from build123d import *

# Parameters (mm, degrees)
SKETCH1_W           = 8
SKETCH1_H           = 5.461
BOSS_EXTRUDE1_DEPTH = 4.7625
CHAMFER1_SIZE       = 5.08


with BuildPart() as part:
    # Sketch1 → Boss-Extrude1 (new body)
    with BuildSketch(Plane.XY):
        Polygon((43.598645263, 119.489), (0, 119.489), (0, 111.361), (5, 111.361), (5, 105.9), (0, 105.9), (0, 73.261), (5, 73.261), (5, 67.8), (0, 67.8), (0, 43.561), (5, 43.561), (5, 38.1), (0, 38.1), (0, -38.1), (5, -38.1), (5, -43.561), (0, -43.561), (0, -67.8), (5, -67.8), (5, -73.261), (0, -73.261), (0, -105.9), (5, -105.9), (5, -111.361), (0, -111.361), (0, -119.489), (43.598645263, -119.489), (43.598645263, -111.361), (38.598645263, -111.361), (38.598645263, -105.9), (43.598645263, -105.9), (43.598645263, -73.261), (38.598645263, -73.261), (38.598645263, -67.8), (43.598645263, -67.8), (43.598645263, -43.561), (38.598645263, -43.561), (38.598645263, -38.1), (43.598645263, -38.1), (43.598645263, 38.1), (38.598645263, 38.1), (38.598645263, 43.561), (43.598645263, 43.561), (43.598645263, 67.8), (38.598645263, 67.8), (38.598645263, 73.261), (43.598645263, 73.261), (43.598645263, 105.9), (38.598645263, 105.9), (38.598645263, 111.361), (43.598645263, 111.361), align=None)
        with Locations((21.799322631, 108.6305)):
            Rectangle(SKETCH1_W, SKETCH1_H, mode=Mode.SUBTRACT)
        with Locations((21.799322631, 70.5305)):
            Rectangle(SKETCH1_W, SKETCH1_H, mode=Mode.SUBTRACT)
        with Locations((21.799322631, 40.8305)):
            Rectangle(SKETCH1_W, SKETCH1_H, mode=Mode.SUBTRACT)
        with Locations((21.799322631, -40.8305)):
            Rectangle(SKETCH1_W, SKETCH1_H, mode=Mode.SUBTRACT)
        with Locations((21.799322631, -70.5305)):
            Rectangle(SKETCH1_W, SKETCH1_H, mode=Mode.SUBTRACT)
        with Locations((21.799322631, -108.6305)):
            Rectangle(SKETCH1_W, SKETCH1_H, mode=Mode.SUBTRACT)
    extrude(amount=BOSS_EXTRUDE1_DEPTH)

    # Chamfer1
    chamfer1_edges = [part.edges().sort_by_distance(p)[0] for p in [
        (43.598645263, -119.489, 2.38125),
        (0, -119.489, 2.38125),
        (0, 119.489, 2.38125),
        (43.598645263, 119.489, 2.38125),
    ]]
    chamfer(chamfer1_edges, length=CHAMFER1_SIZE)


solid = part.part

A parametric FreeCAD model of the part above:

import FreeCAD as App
import Part
import Sketcher
from FreeCAD import Vector
Q = App.Units.Quantity


def edges_at(feature, points):
    """Names of the edges that pass closest to the given points."""
    edges = feature.Shape.Edges
    near = lambda p: min(range(len(edges)), key=lambda i: edges[i].distToShape(Part.Vertex(*p))[0])
    return sorted({f"Edge{near(p) + 1}" for p in points})

doc = App.newDocument("Part")
body = doc.addObject("PartDesign::Body", "Body")

# Sketch on XY plane
sketch1 = body.newObject("Sketcher::SketchObject", "Sketch")
sketch1.AttachmentSupport = (doc.getObject("XY_Plane"), [""])
sketch1.MapMode = "FlatFace"
sketch1.addGeometry(Part.LineSegment(Vector(43.598645, 119.489, 0), Vector(0, 119.489, 0)), False)
sketch1.addGeometry(Part.LineSegment(Vector(0, 119.489, 0), Vector(0, 111.361, 0)), False)
sketch1.addGeometry(Part.LineSegment(Vector(0, 111.361, 0), Vector(5, 111.361, 0)), False)
sketch1.addGeometry(Part.LineSegment(Vector(5, 111.361, 0), Vector(5, 105.9, 0)), False)
sketch1.addGeometry(Part.LineSegment(Vector(5, 105.9, 0), Vector(0, 105.9, 0)), False)
sketch1.addGeometry(Part.LineSegment(Vector(0, 105.9, 0), Vector(0, 73.261, 0)), False)
sketch1.addGeometry(Part.LineSegment(Vector(0, 73.261, 0), Vector(5, 73.261, 0)), False)
sketch1.addGeometry(Part.LineSegment(Vector(5, 73.261, 0), Vector(5, 67.8, 0)), False)
sketch1.addGeometry(Part.LineSegment(Vector(5, 67.8, 0), Vector(0, 67.8, 0)), False)
sketch1.addGeometry(Part.LineSegment(Vector(0, 67.8, 0), Vector(0, 43.561, 0)), False)
sketch1.addGeometry(Part.LineSegment(Vector(0, 43.561, 0), Vector(5, 43.561, 0)), False)
sketch1.addGeometry(Part.LineSegment(Vector(5, 43.561, 0), Vector(5, 38.1, 0)), False)
sketch1.addGeometry(Part.LineSegment(Vector(5, 38.1, 0), Vector(0, 38.1, 0)), False)
sketch1.addGeometry(Part.LineSegment(Vector(0, 38.1, 0), Vector(0, -38.1, 0)), False)
sketch1.addGeometry(Part.LineSegment(Vector(0, -38.1, 0), Vector(5, -38.1, 0)), False)
sketch1.addGeometry(Part.LineSegment(Vector(5, -38.1, 0), Vector(5, -43.561, 0)), False)
sketch1.addGeometry(Part.LineSegment(Vector(5, -43.561, 0), Vector(0, -43.561, 0)), False)
sketch1.addGeometry(Part.LineSegment(Vector(0, -43.561, 0), Vector(0, -67.8, 0)), False)
sketch1.addGeometry(Part.LineSegment(Vector(0, -67.8, 0), Vector(5, -67.8, 0)), False)
sketch1.addGeometry(Part.LineSegment(Vector(5, -67.8, 0), Vector(5, -73.261, 0)), False)
sketch1.addGeometry(Part.LineSegment(Vector(5, -73.261, 0), Vector(0, -73.261, 0)), False)
sketch1.addGeometry(Part.LineSegment(Vector(0, -73.261, 0), Vector(0, -105.9, 0)), False)
sketch1.addGeometry(Part.LineSegment(Vector(0, -105.9, 0), Vector(5, -105.9, 0)), False)
sketch1.addGeometry(Part.LineSegment(Vector(5, -105.9, 0), Vector(5, -111.361, 0)), False)
sketch1.addGeometry(Part.LineSegment(Vector(5, -111.361, 0), Vector(0, -111.361, 0)), False)
sketch1.addGeometry(Part.LineSegment(Vector(0, -111.361, 0), Vector(0, -119.489, 0)), False)
sketch1.addGeometry(Part.LineSegment(Vector(0, -119.489, 0), Vector(43.598645, -119.489, 0)), False)
sketch1.addGeometry(Part.LineSegment(Vector(43.598645, -119.489, 0), Vector(43.598645, -111.361, 0)), False)
sketch1.addGeometry(Part.LineSegment(Vector(43.598645, -111.361, 0), Vector(38.598645, -111.361, 0)), False)
sketch1.addGeometry(Part.LineSegment(Vector(38.598645, -111.361, 0), Vector(38.598645, -105.9, 0)), False)
sketch1.addGeometry(Part.LineSegment(Vector(38.598645, -105.9, 0), Vector(43.598645, -105.9, 0)), False)
sketch1.addGeometry(Part.LineSegment(Vector(43.598645, -105.9, 0), Vector(43.598645, -73.261, 0)), False)
sketch1.addGeometry(Part.LineSegment(Vector(43.598645, -73.261, 0), Vector(38.598645, -73.261, 0)), False)
sketch1.addGeometry(Part.LineSegment(Vector(38.598645, -73.261, 0), Vector(38.598645, -67.8, 0)), False)
sketch1.addGeometry(Part.LineSegment(Vector(38.598645, -67.8, 0), Vector(43.598645, -67.8, 0)), False)
sketch1.addGeometry(Part.LineSegment(Vector(43.598645, -67.8, 0), Vector(43.598645, -43.561, 0)), False)
sketch1.addGeometry(Part.LineSegment(Vector(43.598645, -43.561, 0), Vector(38.598645, -43.561, 0)), False)
sketch1.addGeometry(Part.LineSegment(Vector(38.598645, -43.561, 0), Vector(38.598645, -38.1, 0)), False)
sketch1.addGeometry(Part.LineSegment(Vector(38.598645, -38.1, 0), Vector(43.598645, -38.1, 0)), False)
sketch1.addGeometry(Part.LineSegment(Vector(43.598645, -38.1, 0), Vector(43.598645, 38.1, 0)), False)
sketch1.addGeometry(Part.LineSegment(Vector(43.598645, 38.1, 0), Vector(38.598645, 38.1, 0)), False)
sketch1.addGeometry(Part.LineSegment(Vector(38.598645, 38.1, 0), Vector(38.598645, 43.561, 0)), False)
sketch1.addGeometry(Part.LineSegment(Vector(38.598645, 43.561, 0), Vector(43.598645, 43.561, 0)), False)
sketch1.addGeometry(Part.LineSegment(Vector(43.598645, 43.561, 0), Vector(43.598645, 67.8, 0)), False)
sketch1.addGeometry(Part.LineSegment(Vector(43.598645, 67.8, 0), Vector(38.598645, 67.8, 0)), False)
sketch1.addGeometry(Part.LineSegment(Vector(38.598645, 67.8, 0), Vector(38.598645, 73.261, 0)), False)
sketch1.addGeometry(Part.LineSegment(Vector(38.598645, 73.261, 0), Vector(43.598645, 73.261, 0)), False)
sketch1.addGeometry(Part.LineSegment(Vector(43.598645, 73.261, 0), Vector(43.598645, 105.9, 0)), False)
sketch1.addGeometry(Part.LineSegment(Vector(43.598645, 105.9, 0), Vector(38.598645, 105.9, 0)), False)
sketch1.addGeometry(Part.LineSegment(Vector(38.598645, 105.9, 0), Vector(38.598645, 111.361, 0)), False)
sketch1.addGeometry(Part.LineSegment(Vector(38.598645, 111.361, 0), Vector(43.598645, 111.361, 0)), False)
sketch1.addGeometry(Part.LineSegment(Vector(43.598645, 111.361, 0), Vector(43.598645, 119.489, 0)), False)
sketch1.addGeometry(Part.LineSegment(Vector(25.799323, -111.361, 0), Vector(17.799323, -111.361, 0)), False)
sketch1.addGeometry(Part.LineSegment(Vector(17.799323, -111.361, 0), Vector(17.799323, -105.9, 0)), False)
sketch1.addGeometry(Part.LineSegment(Vector(17.799323, -105.9, 0), Vector(25.799323, -105.9, 0)), False)
sketch1.addGeometry(Part.LineSegment(Vector(25.799323, -105.9, 0), Vector(25.799323, -111.361, 0)), False)
sketch1.addGeometry(Part.LineSegment(Vector(25.799323, -73.261, 0), Vector(17.799323, -73.261, 0)), False)
sketch1.addGeometry(Part.LineSegment(Vector(17.799323, -73.261, 0), Vector(17.799323, -67.8, 0)), False)
sketch1.addGeometry(Part.LineSegment(Vector(17.799323, -67.8, 0), Vector(25.799323, -67.8, 0)), False)
sketch1.addGeometry(Part.LineSegment(Vector(25.799323, -67.8, 0), Vector(25.799323, -73.261, 0)), False)
sketch1.addGeometry(Part.LineSegment(Vector(25.799323, -43.561, 0), Vector(17.799323, -43.561, 0)), False)
sketch1.addGeometry(Part.LineSegment(Vector(17.799323, -43.561, 0), Vector(17.799323, -38.1, 0)), False)
sketch1.addGeometry(Part.LineSegment(Vector(17.799323, -38.1, 0), Vector(25.799323, -38.1, 0)), False)
sketch1.addGeometry(Part.LineSegment(Vector(25.799323, -38.1, 0), Vector(25.799323, -43.561, 0)), False)
sketch1.addGeometry(Part.LineSegment(Vector(25.799323, 38.1, 0), Vector(17.799323, 38.1, 0)), False)
sketch1.addGeometry(Part.LineSegment(Vector(17.799323, 38.1, 0), Vector(17.799323, 43.561, 0)), False)
sketch1.addGeometry(Part.LineSegment(Vector(17.799323, 43.561, 0), Vector(25.799323, 43.561, 0)), False)
sketch1.addGeometry(Part.LineSegment(Vector(25.799323, 43.561, 0), Vector(25.799323, 38.1, 0)), False)
sketch1.addGeometry(Part.LineSegment(Vector(25.799323, 67.8, 0), Vector(17.799323, 67.8, 0)), False)
sketch1.addGeometry(Part.LineSegment(Vector(17.799323, 67.8, 0), Vector(17.799323, 73.261, 0)), False)
sketch1.addGeometry(Part.LineSegment(Vector(17.799323, 73.261, 0), Vector(25.799323, 73.261, 0)), False)
sketch1.addGeometry(Part.LineSegment(Vector(25.799323, 73.261, 0), Vector(25.799323, 67.8, 0)), False)
sketch1.addGeometry(Part.LineSegment(Vector(25.799323, 105.9, 0), Vector(17.799323, 105.9, 0)), False)
sketch1.addGeometry(Part.LineSegment(Vector(17.799323, 105.9, 0), Vector(17.799323, 111.361, 0)), False)
sketch1.addGeometry(Part.LineSegment(Vector(17.799323, 111.361, 0), Vector(25.799323, 111.361, 0)), False)
sketch1.addGeometry(Part.LineSegment(Vector(25.799323, 111.361, 0), Vector(25.799323, 105.9, 0)), False)
sketch1.addConstraint(Sketcher.Constraint("Coincident", 0, 2, 1, 1))
sketch1.addConstraint(Sketcher.Constraint("Coincident", 1, 2, 2, 1))
sketch1.addConstraint(Sketcher.Constraint("Coincident", 2, 2, 3, 1))
sketch1.addConstraint(Sketcher.Constraint("Coincident", 3, 2, 4, 1))
sketch1.addConstraint(Sketcher.Constraint("Coincident", 4, 2, 5, 1))
sketch1.addConstraint(Sketcher.Constraint("Coincident", 5, 2, 6, 1))
sketch1.addConstraint(Sketcher.Constraint("Coincident", 6, 2, 7, 1))
sketch1.addConstraint(Sketcher.Constraint("Coincident", 7, 2, 8, 1))
sketch1.addConstraint(Sketcher.Constraint("Coincident", 8, 2, 9, 1))
sketch1.addConstraint(Sketcher.Constraint("Coincident", 9, 2, 10, 1))
sketch1.addConstraint(Sketcher.Constraint("Coincident", 10, 2, 11, 1))
sketch1.addConstraint(Sketcher.Constraint("Coincident", 11, 2, 12, 1))
sketch1.addConstraint(Sketcher.Constraint("Coincident", 12, 2, 13, 1))
sketch1.addConstraint(Sketcher.Constraint("Coincident", 13, 2, 14, 1))
sketch1.addConstraint(Sketcher.Constraint("Coincident", 14, 2, 15, 1))
sketch1.addConstraint(Sketcher.Constraint("Coincident", 15, 2, 16, 1))
sketch1.addConstraint(Sketcher.Constraint("Coincident", 16, 2, 17, 1))
sketch1.addConstraint(Sketcher.Constraint("Coincident", 17, 2, 18, 1))
sketch1.addConstraint(Sketcher.Constraint("Coincident", 18, 2, 19, 1))
sketch1.addConstraint(Sketcher.Constraint("Coincident", 19, 2, 20, 1))
sketch1.addConstraint(Sketcher.Constraint("Coincident", 20, 2, 21, 1))
sketch1.addConstraint(Sketcher.Constraint("Coincident", 21, 2, 22, 1))
sketch1.addConstraint(Sketcher.Constraint("Coincident", 22, 2, 23, 1))
sketch1.addConstraint(Sketcher.Constraint("Coincident", 23, 2, 24, 1))
sketch1.addConstraint(Sketcher.Constraint("Coincident", 24, 2, 25, 1))
sketch1.addConstraint(Sketcher.Constraint("Coincident", 25, 2, 26, 1))
sketch1.addConstraint(Sketcher.Constraint("Coincident", 26, 2, 27, 1))
sketch1.addConstraint(Sketcher.Constraint("Coincident", 27, 2, 28, 1))
sketch1.addConstraint(Sketcher.Constraint("Coincident", 28, 2, 29, 1))
sketch1.addConstraint(Sketcher.Constraint("Coincident", 29, 2, 30, 1))
sketch1.addConstraint(Sketcher.Constraint("Coincident", 30, 2, 31, 1))
sketch1.addConstraint(Sketcher.Constraint("Coincident", 31, 2, 32, 1))
sketch1.addConstraint(Sketcher.Constraint("Coincident", 32, 2, 33, 1))
sketch1.addConstraint(Sketcher.Constraint("Coincident", 33, 2, 34, 1))
sketch1.addConstraint(Sketcher.Constraint("Coincident", 34, 2, 35, 1))
sketch1.addConstraint(Sketcher.Constraint("Coincident", 35, 2, 36, 1))
sketch1.addConstraint(Sketcher.Constraint("Coincident", 36, 2, 37, 1))
sketch1.addConstraint(Sketcher.Constraint("Coincident", 37, 2, 38, 1))
sketch1.addConstraint(Sketcher.Constraint("Coincident", 38, 2, 39, 1))
sketch1.addConstraint(Sketcher.Constraint("Coincident", 39, 2, 40, 1))
sketch1.addConstraint(Sketcher.Constraint("Coincident", 40, 2, 41, 1))
sketch1.addConstraint(Sketcher.Constraint("Coincident", 41, 2, 42, 1))
sketch1.addConstraint(Sketcher.Constraint("Coincident", 42, 2, 43, 1))
sketch1.addConstraint(Sketcher.Constraint("Coincident", 43, 2, 44, 1))
sketch1.addConstraint(Sketcher.Constraint("Coincident", 44, 2, 45, 1))
sketch1.addConstraint(Sketcher.Constraint("Coincident", 45, 2, 46, 1))
sketch1.addConstraint(Sketcher.Constraint("Coincident", 46, 2, 47, 1))
sketch1.addConstraint(Sketcher.Constraint("Coincident", 47, 2, 48, 1))
sketch1.addConstraint(Sketcher.Constraint("Coincident", 48, 2, 49, 1))
sketch1.addConstraint(Sketcher.Constraint("Coincident", 49, 2, 50, 1))
sketch1.addConstraint(Sketcher.Constraint("Coincident", 50, 2, 51, 1))
sketch1.addConstraint(Sketcher.Constraint("Coincident", 51, 2, 0, 1))
sketch1.addConstraint(Sketcher.Constraint("Coincident", 52, 2, 53, 1))
sketch1.addConstraint(Sketcher.Constraint("Coincident", 53, 2, 54, 1))
sketch1.addConstraint(Sketcher.Constraint("Coincident", 54, 2, 55, 1))
sketch1.addConstraint(Sketcher.Constraint("Coincident", 55, 2, 52, 1))
sketch1.addConstraint(Sketcher.Constraint("Coincident", 56, 2, 57, 1))
sketch1.addConstraint(Sketcher.Constraint("Coincident", 57, 2, 58, 1))
sketch1.addConstraint(Sketcher.Constraint("Coincident", 58, 2, 59, 1))
sketch1.addConstraint(Sketcher.Constraint("Coincident", 59, 2, 56, 1))
sketch1.addConstraint(Sketcher.Constraint("Coincident", 60, 2, 61, 1))
sketch1.addConstraint(Sketcher.Constraint("Coincident", 61, 2, 62, 1))
sketch1.addConstraint(Sketcher.Constraint("Coincident", 62, 2, 63, 1))
sketch1.addConstraint(Sketcher.Constraint("Coincident", 63, 2, 60, 1))
sketch1.addConstraint(Sketcher.Constraint("Coincident", 64, 2, 65, 1))
sketch1.addConstraint(Sketcher.Constraint("Coincident", 65, 2, 66, 1))
sketch1.addConstraint(Sketcher.Constraint("Coincident", 66, 2, 67, 1))
sketch1.addConstraint(Sketcher.Constraint("Coincident", 67, 2, 64, 1))
sketch1.addConstraint(Sketcher.Constraint("Coincident", 68, 2, 69, 1))
sketch1.addConstraint(Sketcher.Constraint("Coincident", 69, 2, 70, 1))
sketch1.addConstraint(Sketcher.Constraint("Coincident", 70, 2, 71, 1))
sketch1.addConstraint(Sketcher.Constraint("Coincident", 71, 2, 68, 1))
sketch1.addConstraint(Sketcher.Constraint("Coincident", 72, 2, 73, 1))
sketch1.addConstraint(Sketcher.Constraint("Coincident", 73, 2, 74, 1))
sketch1.addConstraint(Sketcher.Constraint("Coincident", 74, 2, 75, 1))
sketch1.addConstraint(Sketcher.Constraint("Coincident", 75, 2, 72, 1))
sketch1.addConstraint(Sketcher.Constraint("Horizontal", 0))
sketch1.addConstraint(Sketcher.Constraint("Vertical", 1))
sketch1.addConstraint(Sketcher.Constraint("Horizontal", 2))
sketch1.addConstraint(Sketcher.Constraint("Vertical", 3))
sketch1.addConstraint(Sketcher.Constraint("Horizontal", 4))
sketch1.addConstraint(Sketcher.Constraint("Vertical", 5))
sketch1.addConstraint(Sketcher.Constraint("Horizontal", 6))
sketch1.addConstraint(Sketcher.Constraint("Vertical", 7))
sketch1.addConstraint(Sketcher.Constraint("Horizontal", 8))
sketch1.addConstraint(Sketcher.Constraint("Vertical", 9))
sketch1.addConstraint(Sketcher.Constraint("Horizontal", 10))
sketch1.addConstraint(Sketcher.Constraint("Vertical", 11))
sketch1.addConstraint(Sketcher.Constraint("Horizontal", 12))
sketch1.addConstraint(Sketcher.Constraint("Vertical", 13))
sketch1.addConstraint(Sketcher.Constraint("Horizontal", 14))
sketch1.addConstraint(Sketcher.Constraint("Vertical", 15))
sketch1.addConstraint(Sketcher.Constraint("Horizontal", 16))
sketch1.addConstraint(Sketcher.Constraint("Vertical", 17))
sketch1.addConstraint(Sketcher.Constraint("Horizontal", 18))
sketch1.addConstraint(Sketcher.Constraint("Vertical", 19))
sketch1.addConstraint(Sketcher.Constraint("Horizontal", 20))
sketch1.addConstraint(Sketcher.Constraint("Vertical", 21))
sketch1.addConstraint(Sketcher.Constraint("Horizontal", 22))
sketch1.addConstraint(Sketcher.Constraint("Vertical", 23))
sketch1.addConstraint(Sketcher.Constraint("Horizontal", 24))
sketch1.addConstraint(Sketcher.Constraint("Vertical", 25))
sketch1.addConstraint(Sketcher.Constraint("Horizontal", 26))
sketch1.addConstraint(Sketcher.Constraint("Vertical", 27))
sketch1.addConstraint(Sketcher.Constraint("Horizontal", 28))
sketch1.addConstraint(Sketcher.Constraint("Vertical", 29))
sketch1.addConstraint(Sketcher.Constraint("Horizontal", 30))
sketch1.addConstraint(Sketcher.Constraint("Vertical", 31))
sketch1.addConstraint(Sketcher.Constraint("Horizontal", 32))
sketch1.addConstraint(Sketcher.Constraint("Vertical", 33))
sketch1.addConstraint(Sketcher.Constraint("Horizontal", 34))
sketch1.addConstraint(Sketcher.Constraint("Vertical", 35))
sketch1.addConstraint(Sketcher.Constraint("Horizontal", 36))
sketch1.addConstraint(Sketcher.Constraint("Vertical", 37))
sketch1.addConstraint(Sketcher.Constraint("Horizontal", 38))
sketch1.addConstraint(Sketcher.Constraint("Vertical", 39))
sketch1.addConstraint(Sketcher.Constraint("Horizontal", 40))
sketch1.addConstraint(Sketcher.Constraint("Vertical", 41))
sketch1.addConstraint(Sketcher.Constraint("Horizontal", 42))
sketch1.addConstraint(Sketcher.Constraint("Vertical", 43))
sketch1.addConstraint(Sketcher.Constraint("Horizontal", 44))
sketch1.addConstraint(Sketcher.Constraint("Vertical", 45))
sketch1.addConstraint(Sketcher.Constraint("Horizontal", 46))
sketch1.addConstraint(Sketcher.Constraint("Vertical", 47))
sketch1.addConstraint(Sketcher.Constraint("Horizontal", 48))
sketch1.addConstraint(Sketcher.Constraint("Vertical", 49))
sketch1.addConstraint(Sketcher.Constraint("Horizontal", 50))
sketch1.addConstraint(Sketcher.Constraint("Vertical", 51))
sketch1.addConstraint(Sketcher.Constraint("Horizontal", 52))
sketch1.addConstraint(Sketcher.Constraint("Vertical", 53))
sketch1.addConstraint(Sketcher.Constraint("Horizontal", 54))
sketch1.addConstraint(Sketcher.Constraint("Vertical", 55))
sketch1.addConstraint(Sketcher.Constraint("Horizontal", 56))
sketch1.addConstraint(Sketcher.Constraint("Vertical", 57))
sketch1.addConstraint(Sketcher.Constraint("Horizontal", 58))
sketch1.addConstraint(Sketcher.Constraint("Vertical", 59))
sketch1.addConstraint(Sketcher.Constraint("Horizontal", 60))
sketch1.addConstraint(Sketcher.Constraint("Vertical", 61))
sketch1.addConstraint(Sketcher.Constraint("Horizontal", 62))
sketch1.addConstraint(Sketcher.Constraint("Vertical", 63))
sketch1.addConstraint(Sketcher.Constraint("Horizontal", 64))
sketch1.addConstraint(Sketcher.Constraint("Vertical", 65))
sketch1.addConstraint(Sketcher.Constraint("Horizontal", 66))
sketch1.addConstraint(Sketcher.Constraint("Vertical", 67))
sketch1.addConstraint(Sketcher.Constraint("Horizontal", 68))
sketch1.addConstraint(Sketcher.Constraint("Vertical", 69))
sketch1.addConstraint(Sketcher.Constraint("Horizontal", 70))
sketch1.addConstraint(Sketcher.Constraint("Vertical", 71))
sketch1.addConstraint(Sketcher.Constraint("Horizontal", 72))
sketch1.addConstraint(Sketcher.Constraint("Vertical", 73))
sketch1.addConstraint(Sketcher.Constraint("Horizontal", 74))
sketch1.addConstraint(Sketcher.Constraint("Vertical", 75))
sketch1.addConstraint(Sketcher.Constraint("Symmetric", 12, 2, 13, 2, -1, 1))
sketch1.addConstraint(Sketcher.Constraint("Symmetric", 9, 2, 16, 2, -1, 1))
sketch1.addConstraint(Sketcher.Constraint("Symmetric", 5, 2, 20, 2, -1, 1))
sketch1.addConstraint(Sketcher.Constraint("Symmetric", 1, 2, 24, 2, -1, 1))
sketch1.addConstraint(Sketcher.Constraint("Symmetric", 8, 2, 17, 2, -1))
sketch1.addConstraint(Sketcher.Constraint("Symmetric", 4, 2, 21, 2, -1))
sketch1.addConstraint(Sketcher.Constraint("Symmetric", 0, 2, 25, 2, -1))
sketch1.addConstraint(Sketcher.Constraint("Symmetric", 37, 2, 40, 2, -1))
sketch1.addConstraint(Sketcher.Constraint("Symmetric", 35, 2, 42, 2, -1))
sketch1.addConstraint(Sketcher.Constraint("Symmetric", 33, 2, 44, 2, -1))
sketch1.addConstraint(Sketcher.Constraint("Symmetric", 31, 2, 46, 2, -1))
sketch1.addConstraint(Sketcher.Constraint("Symmetric", 29, 2, 48, 2, -1))
sketch1.addConstraint(Sketcher.Constraint("Symmetric", 27, 2, 50, 2, -1))
sketch1.addConstraint(Sketcher.Constraint("Symmetric", 61, 2, 64, 2, -1))
sketch1.addConstraint(Sketcher.Constraint("Symmetric", 63, 2, 66, 2, -1))
sketch1.addConstraint(Sketcher.Constraint("Symmetric", 57, 2, 68, 2, -1))
sketch1.addConstraint(Sketcher.Constraint("Symmetric", 59, 2, 70, 2, -1))
sketch1.addConstraint(Sketcher.Constraint("Symmetric", 53, 2, 72, 2, -1))
sketch1.addConstraint(Sketcher.Constraint("Symmetric", 55, 2, 74, 2, -1))
sketch1.addConstraint(Sketcher.Constraint("Horizontal", 24, 2, 27, 2))
sketch1.addConstraint(Sketcher.Constraint("Horizontal", 22, 2, 29, 2))
sketch1.addConstraint(Sketcher.Constraint("Horizontal", 20, 2, 31, 2))
sketch1.addConstraint(Sketcher.Constraint("Horizontal", 18, 2, 33, 2))
sketch1.addConstraint(Sketcher.Constraint("Horizontal", 16, 2, 35, 2))
sketch1.addConstraint(Sketcher.Constraint("Horizontal", 14, 2, 37, 2))
sketch1.addConstraint(Sketcher.Constraint("Horizontal", 28, 2, 52, 2))
sketch1.addConstraint(Sketcher.Constraint("Horizontal", 30, 2, 53, 2))
sketch1.addConstraint(Sketcher.Constraint("Horizontal", 32, 2, 56, 2))
sketch1.addConstraint(Sketcher.Constraint("Horizontal", 34, 2, 57, 2))
sketch1.addConstraint(Sketcher.Constraint("Horizontal", 36, 2, 60, 2))
sketch1.addConstraint(Sketcher.Constraint("Horizontal", 38, 2, 61, 2))
sketch1.addConstraint(Sketcher.Constraint("Vertical", 3, 2, 6, 2))
sketch1.addConstraint(Sketcher.Constraint("Vertical", 7, 2, 10, 2))
sketch1.addConstraint(Sketcher.Constraint("Vertical", 11, 2, 14, 2))
sketch1.addConstraint(Sketcher.Constraint("Vertical", 15, 2, 18, 2))
sketch1.addConstraint(Sketcher.Constraint("Vertical", 19, 2, 22, 2))
sketch1.addConstraint(Sketcher.Constraint("Vertical", 27, 2, 30, 2))
sketch1.addConstraint(Sketcher.Constraint("Vertical", 29, 2, 32, 2))
sketch1.addConstraint(Sketcher.Constraint("Vertical", 31, 2, 34, 2))
sketch1.addConstraint(Sketcher.Constraint("Vertical", 33, 2, 36, 2))
sketch1.addConstraint(Sketcher.Constraint("Vertical", 35, 2, 38, 2))
sketch1.addConstraint(Sketcher.Constraint("Vertical", 53, 2, 56, 2))
sketch1.addConstraint(Sketcher.Constraint("Vertical", 55, 2, 58, 2))
sketch1.addConstraint(Sketcher.Constraint("Vertical", 57, 2, 60, 2))
sketch1.addConstraint(Sketcher.Constraint("Vertical", 59, 2, 62, 2))
sketch1.addConstraint(Sketcher.Constraint("Equal", 24, 28))
sketch1.addConstraint(Sketcher.Constraint("Equal", 3, 7))
sketch1.addConstraint(Sketcher.Constraint("Equal", 7, 11))
sketch1.addConstraint(Sketcher.Constraint("DistanceY", 13, 2, 13, 1, Q("3 in")))
sketch1.addConstraint(Sketcher.Constraint("DistanceY", 1, 2, 1, 1, Q("0.32 in")))
sketch1.addConstraint(Sketcher.Constraint("DistanceY", 3, 2, 3, 1, Q("0.215 in")))
sketch1.addConstraint(Sketcher.Constraint("DistanceY", 5, 2, 5, 1, Q("1.285 in")))
sketch1.addConstraint(Sketcher.Constraint("DistanceX", 2, 1, 2, 2, Q("5 mm")))
sketch1.addConstraint(Sketcher.Constraint("DistanceX", 52, 2, 52, 1, Q("8 mm")))
sketch1.addConstraint(Sketcher.Constraint("DistanceY", 9, 2, 9, 1, Q("24.239 mm")))
sketch1.addConstraint(Sketcher.Constraint("DistanceX", 0, 2, 0, 1, Q("43.598645 mm")))
sketch1.addConstraint(Sketcher.Constraint("DistanceX", -1, 1, 52, 2, Q("17.799323 mm")))
pad1 = body.newObject("PartDesign::Pad", "Pad")
pad1.Profile = sketch1
pad1.Length = Q("0.1875 in")
doc.recompute()

chamfer = body.newObject("PartDesign::Chamfer", "Chamfer")
chamfer.Base = (pad1, edges_at(pad1, [
    (43.599, -119.489, 2.381),
    (0, -119.489, 2.381),
    (0, 119.489, 2.381),
    (43.599, 119.489, 2.381),
]))
chamfer.Size = Q("0.2 in")

doc.recompute()
